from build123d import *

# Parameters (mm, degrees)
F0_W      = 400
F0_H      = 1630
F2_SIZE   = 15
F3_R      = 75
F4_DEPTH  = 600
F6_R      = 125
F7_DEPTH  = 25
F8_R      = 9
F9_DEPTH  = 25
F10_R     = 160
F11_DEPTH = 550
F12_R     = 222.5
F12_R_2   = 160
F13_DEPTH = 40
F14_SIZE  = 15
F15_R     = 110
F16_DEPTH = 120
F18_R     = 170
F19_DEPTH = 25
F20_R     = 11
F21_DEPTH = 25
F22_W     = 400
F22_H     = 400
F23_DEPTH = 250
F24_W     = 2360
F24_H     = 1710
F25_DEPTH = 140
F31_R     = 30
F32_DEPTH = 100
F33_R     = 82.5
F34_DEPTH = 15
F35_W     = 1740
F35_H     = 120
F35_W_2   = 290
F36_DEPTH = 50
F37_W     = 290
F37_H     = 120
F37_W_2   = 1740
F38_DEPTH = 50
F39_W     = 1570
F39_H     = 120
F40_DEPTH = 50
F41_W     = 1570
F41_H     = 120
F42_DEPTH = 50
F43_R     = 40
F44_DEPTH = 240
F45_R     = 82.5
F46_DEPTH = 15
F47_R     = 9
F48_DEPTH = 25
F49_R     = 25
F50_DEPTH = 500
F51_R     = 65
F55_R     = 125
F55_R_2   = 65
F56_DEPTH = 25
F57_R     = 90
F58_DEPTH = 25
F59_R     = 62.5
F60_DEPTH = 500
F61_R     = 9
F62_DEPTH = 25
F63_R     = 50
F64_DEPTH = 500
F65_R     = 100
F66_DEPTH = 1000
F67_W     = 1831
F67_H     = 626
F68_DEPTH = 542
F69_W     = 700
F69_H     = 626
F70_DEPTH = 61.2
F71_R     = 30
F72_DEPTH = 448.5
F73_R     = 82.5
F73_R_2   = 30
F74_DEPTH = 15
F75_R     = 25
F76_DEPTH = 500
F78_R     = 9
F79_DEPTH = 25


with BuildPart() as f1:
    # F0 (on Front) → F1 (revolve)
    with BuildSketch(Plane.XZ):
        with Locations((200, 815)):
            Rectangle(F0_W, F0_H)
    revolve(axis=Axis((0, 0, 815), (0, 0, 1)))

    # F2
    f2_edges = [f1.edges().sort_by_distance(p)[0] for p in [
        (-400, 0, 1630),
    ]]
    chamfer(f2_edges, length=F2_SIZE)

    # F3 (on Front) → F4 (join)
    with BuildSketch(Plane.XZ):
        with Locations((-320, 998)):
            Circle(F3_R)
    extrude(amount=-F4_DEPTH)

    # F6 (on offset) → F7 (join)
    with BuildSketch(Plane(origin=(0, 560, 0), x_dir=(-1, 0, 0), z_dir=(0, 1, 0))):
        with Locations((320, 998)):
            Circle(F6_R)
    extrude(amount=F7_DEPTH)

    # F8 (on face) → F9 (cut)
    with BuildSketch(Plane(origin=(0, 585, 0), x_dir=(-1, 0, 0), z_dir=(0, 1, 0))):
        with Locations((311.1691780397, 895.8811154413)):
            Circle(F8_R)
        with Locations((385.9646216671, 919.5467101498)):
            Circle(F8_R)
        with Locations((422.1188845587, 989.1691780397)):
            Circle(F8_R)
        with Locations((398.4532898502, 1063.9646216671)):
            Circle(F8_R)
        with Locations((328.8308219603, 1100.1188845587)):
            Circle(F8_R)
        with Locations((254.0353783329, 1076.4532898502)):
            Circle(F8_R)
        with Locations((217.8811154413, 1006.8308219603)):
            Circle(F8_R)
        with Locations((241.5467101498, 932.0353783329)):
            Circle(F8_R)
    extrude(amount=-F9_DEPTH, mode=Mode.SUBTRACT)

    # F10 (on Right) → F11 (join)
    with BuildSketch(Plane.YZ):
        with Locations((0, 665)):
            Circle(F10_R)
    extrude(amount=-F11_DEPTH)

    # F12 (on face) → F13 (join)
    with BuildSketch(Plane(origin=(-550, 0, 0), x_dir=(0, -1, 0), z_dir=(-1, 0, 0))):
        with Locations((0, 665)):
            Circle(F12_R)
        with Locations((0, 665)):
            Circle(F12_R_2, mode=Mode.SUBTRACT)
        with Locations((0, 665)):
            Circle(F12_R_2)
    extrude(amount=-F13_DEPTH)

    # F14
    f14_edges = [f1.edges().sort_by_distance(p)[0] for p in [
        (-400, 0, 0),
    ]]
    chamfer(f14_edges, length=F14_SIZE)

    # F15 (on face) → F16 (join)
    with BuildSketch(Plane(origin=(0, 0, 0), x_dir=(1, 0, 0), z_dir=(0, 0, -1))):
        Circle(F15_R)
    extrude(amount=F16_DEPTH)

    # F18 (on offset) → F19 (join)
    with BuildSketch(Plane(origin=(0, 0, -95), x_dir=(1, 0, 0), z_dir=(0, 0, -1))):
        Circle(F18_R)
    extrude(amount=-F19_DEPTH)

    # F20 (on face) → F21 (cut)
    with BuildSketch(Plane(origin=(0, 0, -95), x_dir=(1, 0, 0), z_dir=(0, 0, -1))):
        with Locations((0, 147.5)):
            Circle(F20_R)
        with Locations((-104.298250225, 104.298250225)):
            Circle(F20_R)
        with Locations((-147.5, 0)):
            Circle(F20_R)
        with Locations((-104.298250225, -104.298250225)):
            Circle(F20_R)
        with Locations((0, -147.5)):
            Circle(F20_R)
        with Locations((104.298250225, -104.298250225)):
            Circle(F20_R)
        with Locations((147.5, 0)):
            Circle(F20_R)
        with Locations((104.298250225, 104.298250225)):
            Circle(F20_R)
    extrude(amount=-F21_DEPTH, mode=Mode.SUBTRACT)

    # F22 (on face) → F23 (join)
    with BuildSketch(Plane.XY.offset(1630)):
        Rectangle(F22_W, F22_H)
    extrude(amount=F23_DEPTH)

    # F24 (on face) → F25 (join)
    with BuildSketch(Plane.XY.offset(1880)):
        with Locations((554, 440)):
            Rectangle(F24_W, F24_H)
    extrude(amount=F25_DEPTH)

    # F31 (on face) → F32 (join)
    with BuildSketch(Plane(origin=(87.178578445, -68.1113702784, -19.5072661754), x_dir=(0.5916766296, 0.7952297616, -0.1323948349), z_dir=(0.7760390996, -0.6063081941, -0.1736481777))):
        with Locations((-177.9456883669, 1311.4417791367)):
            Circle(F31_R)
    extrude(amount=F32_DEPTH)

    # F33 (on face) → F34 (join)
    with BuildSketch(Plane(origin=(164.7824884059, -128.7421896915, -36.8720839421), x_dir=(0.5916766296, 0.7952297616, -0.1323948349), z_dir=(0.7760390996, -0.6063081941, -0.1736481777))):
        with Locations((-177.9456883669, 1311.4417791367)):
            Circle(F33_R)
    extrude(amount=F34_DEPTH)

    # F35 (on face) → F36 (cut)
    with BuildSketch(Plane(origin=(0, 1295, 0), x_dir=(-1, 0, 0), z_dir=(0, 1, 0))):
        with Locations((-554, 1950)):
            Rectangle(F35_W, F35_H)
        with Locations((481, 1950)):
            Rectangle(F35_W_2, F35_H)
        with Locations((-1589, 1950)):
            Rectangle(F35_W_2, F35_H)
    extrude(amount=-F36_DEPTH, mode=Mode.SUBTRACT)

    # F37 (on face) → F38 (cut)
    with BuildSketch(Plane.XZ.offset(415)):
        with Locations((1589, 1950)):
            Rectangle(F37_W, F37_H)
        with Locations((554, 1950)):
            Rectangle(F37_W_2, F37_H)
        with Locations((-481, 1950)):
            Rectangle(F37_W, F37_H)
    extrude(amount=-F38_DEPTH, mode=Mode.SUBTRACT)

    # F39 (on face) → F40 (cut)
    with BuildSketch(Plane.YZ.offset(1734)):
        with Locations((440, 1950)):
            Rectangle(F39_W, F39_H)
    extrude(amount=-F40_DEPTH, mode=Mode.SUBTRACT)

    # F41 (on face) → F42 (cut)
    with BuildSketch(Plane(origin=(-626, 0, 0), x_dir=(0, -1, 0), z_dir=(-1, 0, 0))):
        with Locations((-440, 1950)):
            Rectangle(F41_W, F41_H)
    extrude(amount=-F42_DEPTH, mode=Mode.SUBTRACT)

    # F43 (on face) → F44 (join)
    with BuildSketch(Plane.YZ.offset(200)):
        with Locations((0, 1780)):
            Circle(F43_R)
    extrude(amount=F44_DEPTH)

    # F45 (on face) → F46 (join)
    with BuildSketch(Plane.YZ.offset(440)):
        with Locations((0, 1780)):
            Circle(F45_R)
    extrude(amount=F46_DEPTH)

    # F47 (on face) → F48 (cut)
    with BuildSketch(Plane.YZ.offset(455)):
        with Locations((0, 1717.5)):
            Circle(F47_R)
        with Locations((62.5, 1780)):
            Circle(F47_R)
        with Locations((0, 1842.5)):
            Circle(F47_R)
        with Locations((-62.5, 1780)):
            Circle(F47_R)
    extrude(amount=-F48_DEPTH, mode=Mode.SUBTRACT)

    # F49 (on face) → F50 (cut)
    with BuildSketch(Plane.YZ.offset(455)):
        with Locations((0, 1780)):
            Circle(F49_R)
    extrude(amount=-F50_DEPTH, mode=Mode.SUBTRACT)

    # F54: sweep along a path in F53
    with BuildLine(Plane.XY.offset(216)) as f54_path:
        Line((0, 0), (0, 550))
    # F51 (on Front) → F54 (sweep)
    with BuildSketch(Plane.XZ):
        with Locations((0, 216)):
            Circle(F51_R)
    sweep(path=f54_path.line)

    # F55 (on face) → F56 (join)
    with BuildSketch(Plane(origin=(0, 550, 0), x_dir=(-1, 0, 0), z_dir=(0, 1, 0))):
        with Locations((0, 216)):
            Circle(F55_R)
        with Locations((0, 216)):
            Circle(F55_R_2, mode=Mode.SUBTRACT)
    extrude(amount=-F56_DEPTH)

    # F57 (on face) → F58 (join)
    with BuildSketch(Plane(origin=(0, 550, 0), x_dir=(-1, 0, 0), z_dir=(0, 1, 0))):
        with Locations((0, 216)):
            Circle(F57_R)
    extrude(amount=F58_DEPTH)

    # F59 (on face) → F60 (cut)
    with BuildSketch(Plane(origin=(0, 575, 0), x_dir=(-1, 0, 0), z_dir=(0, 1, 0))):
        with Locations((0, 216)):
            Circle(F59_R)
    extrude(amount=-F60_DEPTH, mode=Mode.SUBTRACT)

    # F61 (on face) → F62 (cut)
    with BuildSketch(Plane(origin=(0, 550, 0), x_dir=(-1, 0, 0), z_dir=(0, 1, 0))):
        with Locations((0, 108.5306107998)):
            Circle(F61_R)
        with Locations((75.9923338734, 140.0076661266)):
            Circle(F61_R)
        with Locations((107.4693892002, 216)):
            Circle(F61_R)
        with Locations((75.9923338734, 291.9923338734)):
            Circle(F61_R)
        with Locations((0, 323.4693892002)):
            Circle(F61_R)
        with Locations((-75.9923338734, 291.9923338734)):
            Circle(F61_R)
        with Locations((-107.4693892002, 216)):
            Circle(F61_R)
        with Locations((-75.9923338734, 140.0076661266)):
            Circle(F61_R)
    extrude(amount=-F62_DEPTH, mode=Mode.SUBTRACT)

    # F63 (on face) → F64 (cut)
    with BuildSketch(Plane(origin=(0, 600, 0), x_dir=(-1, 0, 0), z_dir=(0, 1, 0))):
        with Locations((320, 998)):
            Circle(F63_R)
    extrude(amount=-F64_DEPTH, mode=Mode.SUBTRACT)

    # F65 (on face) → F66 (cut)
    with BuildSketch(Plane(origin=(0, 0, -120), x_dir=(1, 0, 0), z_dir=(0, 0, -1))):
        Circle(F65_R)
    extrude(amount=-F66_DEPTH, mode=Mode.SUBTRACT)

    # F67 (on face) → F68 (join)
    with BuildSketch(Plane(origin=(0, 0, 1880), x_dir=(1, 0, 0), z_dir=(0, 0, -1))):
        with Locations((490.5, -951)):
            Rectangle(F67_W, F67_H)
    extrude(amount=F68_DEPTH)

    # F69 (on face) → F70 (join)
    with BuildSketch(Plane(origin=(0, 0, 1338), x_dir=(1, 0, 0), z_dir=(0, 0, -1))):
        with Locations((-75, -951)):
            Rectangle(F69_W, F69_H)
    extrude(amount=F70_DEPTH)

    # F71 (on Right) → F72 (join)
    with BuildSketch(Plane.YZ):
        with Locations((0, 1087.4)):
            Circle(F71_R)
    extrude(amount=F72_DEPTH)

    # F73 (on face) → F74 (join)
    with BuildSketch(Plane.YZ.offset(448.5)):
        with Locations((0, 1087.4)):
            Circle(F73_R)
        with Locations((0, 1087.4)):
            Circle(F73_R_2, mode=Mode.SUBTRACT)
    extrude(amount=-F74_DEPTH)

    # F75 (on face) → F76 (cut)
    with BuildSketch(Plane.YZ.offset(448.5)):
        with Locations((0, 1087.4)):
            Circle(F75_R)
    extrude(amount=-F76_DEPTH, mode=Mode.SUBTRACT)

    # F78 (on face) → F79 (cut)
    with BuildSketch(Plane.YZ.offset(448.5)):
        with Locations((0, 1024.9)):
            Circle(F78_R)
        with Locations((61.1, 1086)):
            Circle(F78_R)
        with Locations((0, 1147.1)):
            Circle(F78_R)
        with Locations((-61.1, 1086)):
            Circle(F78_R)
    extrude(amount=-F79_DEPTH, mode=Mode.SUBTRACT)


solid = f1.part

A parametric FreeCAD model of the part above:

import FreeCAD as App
import Part
import Sketcher


def edges_at(feature, points):
    """Names of the edges that pass closest to the given points."""
    edges = feature.Shape.Edges
    near = lambda p: min(range(len(edges)), key=lambda i: edges[i].distToShape(Part.Vertex(*p))[0])
    return sorted({f"Edge{near(p) + 1}" for p in points})


def add_polygon(sketch, points):
    """Adds a closed chain of lines whose ends are joined by coincident constraints."""
    first, n = sketch.GeometryCount, len(points)
    for a, b in zip(points, points[1:] + points[:1]):
        sketch.addGeometry(Part.LineSegment(App.Vector(*a, 0), App.Vector(*b, 0)), False)
    for i in range(n):
        sketch.addConstraint(Sketcher.Constraint("Coincident", first + i, 2, first + (i + 1) % n, 1))

doc = App.newDocument("Part")
body = doc.addObject("PartDesign::Body", "Body")

sketch1 = doc.addObject("Sketcher::SketchObject", "Sketch")
body.addObject(sketch1)
sketch1.AttachmentSupport = (doc.XZ_Plane, [""])
sketch1.MapMode = "FlatFace"
add_polygon(sketch1, [(0, 1630), (0, 0), (400, 0), (400, 1630)])
sketch1.addConstraint(Sketcher.Constraint("Vertical", 0))
sketch1.addConstraint(Sketcher.Constraint("Horizontal", 1))
sketch1.addConstraint(Sketcher.Constraint("Vertical", 2))
sketch1.addConstraint(Sketcher.Constraint("Horizontal", 3))
sketch1.addConstraint(Sketcher.Constraint("Coincident", 0, 2, -1, 1))
sketch1.addConstraint(Sketcher.Constraint("DistanceX", 1, 1, 1, 2, 400.0))
sketch1.addConstraint(Sketcher.Constraint("DistanceY", 0, 2, 0, 1, 1630.0))
revolution = doc.addObject("PartDesign::Revolution", "Revolution")
body.addObject(revolution)
revolution.Profile = sketch1
revolution.ReferenceAxis = (sketch1, ["V_Axis"])
revolution.Angle = 360
doc.recompute()

chamfer = doc.addObject("PartDesign::Chamfer", "Chamfer")
body.addObject(chamfer)
chamfer.Base = (revolution, edges_at(revolution, [(-400, 0, 1630)]))
chamfer.Size = 15

sketch2 = doc.addObject("Sketcher::SketchObject", "Sketch001")
body.addObject(sketch2)
sketch2.AttachmentSupport = (doc.XZ_Plane, [""])
sketch2.MapMode = "FlatFace"
sketch2.addGeometry(Part.Circle(App.Vector(-320, 998, 0), App.Vector(0, 0, 1), 75), False)
sketch2.addConstraint(Sketcher.Constraint("Diameter", 0, 150.0))
sketch2.addConstraint(Sketcher.Constraint("DistanceX", 0, 3, -1, 1, 320.0))
sketch2.addConstraint(Sketcher.Constraint("DistanceY", -1, 1, 0, 3, 998.0))
pad1 = doc.addObject("PartDesign::Pad", "Pad")
body.addObject(pad1)
pad1.Profile = sketch2
pad1.Length = 600
pad1.Reversed = True

sketch3 = doc.addObject("Sketcher::SketchObject", "Sketch002")
body.addObject(sketch3)
sketch3.AttachmentSupport = (doc.XZ_Plane, [""])
sketch3.MapMode = "FlatFace"
sketch3.AttachmentOffset = App.Placement(App.Vector(0, 0, -560), App.Rotation())
sketch3.addGeometry(Part.Circle(App.Vector(-320, 998, 0), App.Vector(0, 0, 1), 125), False)
sketch3.addConstraint(Sketcher.Constraint("Diameter", 0, 250.0))
sketch3.addConstraint(Sketcher.Constraint("DistanceX", 0, 3, -1, 1, 320.0))
sketch3.addConstraint(Sketcher.Constraint("DistanceY", -1, 1, 0, 3, 998.0))
pad2 = doc.addObject("PartDesign::Pad", "Pad001")
body.addObject(pad2)
pad2.Profile = sketch3
pad2.Length = 25
pad2.Reversed = True

sketch4 = doc.addObject("Sketcher::SketchObject", "Sketch003")
body.addObject(sketch4)
sketch4.AttachmentSupport = (doc.XZ_Plane, [""])
sketch4.MapMode = "FlatFace"
sketch4.AttachmentOffset = App.Placement(App.Vector(0, 0, -585), App.Rotation())
sketch4.addGeometry(Part.Circle(App.Vector(-311.169178, 895.881115, 0), App.Vector(0, 0, 1), 9), False)
sketch4.addGeometry(Part.Circle(App.Vector(-385.964622, 919.54671, 0), App.Vector(0, 0, 1), 9), False)
sketch4.addGeometry(Part.Circle(App.Vector(-422.118885, 989.169178, 0), App.Vector(0, 0, 1), 9), False)
sketch4.addGeometry(Part.Circle(App.Vector(-398.45329, 1063.964622, 0), App.Vector(0, 0, 1), 9), False)
sketch4.addGeometry(Part.Circle(App.Vector(-328.830822, 1100.118885, 0), App.Vector(0, 0, 1), 9), False)
sketch4.addGeometry(Part.Circle(App.Vector(-254.035378, 1076.45329, 0), App.Vector(0, 0, 1), 9), False)
sketch4.addGeometry(Part.Circle(App.Vector(-217.881115, 1006.830822, 0), App.Vector(0, 0, 1), 9), False)
sketch4.addGeometry(Part.Circle(App.Vector(-241.54671, 932.035378, 0), App.Vector(0, 0, 1), 9), False)
sketch4.addConstraint(Sketcher.Constraint("Equal", 0, 1))
sketch4.addConstraint(Sketcher.Constraint("Equal", 1, 2))
sketch4.addConstraint(Sketcher.Constraint("Equal", 2, 3))
sketch4.addConstraint(Sketcher.Constraint("Equal", 3, 4))
sketch4.addConstraint(Sketcher.Constraint("Equal", 4, 5))
sketch4.addConstraint(Sketcher.Constraint("Equal", 5, 6))
sketch4.addConstraint(Sketcher.Constraint("Equal", 6, 7))
sketch4.addConstraint(Sketcher.Constraint("Diameter", 0, 18.0))
sketch4.addConstraint(Sketcher.Constraint("DistanceX", 1, 3, 4, 3, 57.1338))
sketch4.addConstraint(Sketcher.Constraint("DistanceX", 0, 3, 5, 3, 57.1338))
sketch4.addConstraint(Sketcher.Constraint("DistanceY", 6, 3, 3, 3, 57.1338))
sketch4.addConstraint(Sketcher.Constraint("DistanceX", 0, 3, -1, 1, 311.169178))
sketch4.addConstraint(Sketcher.Constraint("DistanceX", 1, 3, -1, 1, 385.964622))
sketch4.addConstraint(Sketcher.Constraint("DistanceY", -1, 1, 1, 3, 919.54671))
sketch4.addConstraint(Sketcher.Constraint("DistanceY", -1, 1, 2, 3, 989.169178))
sketch4.addConstraint(Sketcher.Constraint("DistanceX", 3, 3, -1, 1, 398.45329))
sketch4.addConstraint(Sketcher.Constraint("DistanceY", -1, 1, 3, 3, 1063.964622))
sketch4.addConstraint(Sketcher.Constraint("DistanceY", -1, 1, 5, 3, 1076.45329))
sketch4.addConstraint(Sketcher.Constraint("DistanceX", 7, 3, -1, 1, 241.54671))
sketch4.addConstraint(Sketcher.Constraint("DistanceY", -1, 1, 7, 3, 932.035378))
sketch4.addConstraint(Sketcher.Constraint("DistanceY", 0, 3, 4, 3, 204.237769))
sketch4.addConstraint(Sketcher.Constraint("DistanceY", -1, 1, 0, 3, 895.881115))
sketch4.addConstraint(Sketcher.Constraint("DistanceX", 2, 3, -1, 1, 422.118885))
sketch4.addConstraint(Sketcher.Constraint("DistanceX", 6, 3, -1, 1, 217.881115))
pocket1 = doc.addObject("PartDesign::Pocket", "Pocket")
body.addObject(pocket1)
pocket1.Profile = sketch4
pocket1.Length = 25
pocket1.Reversed = True

sketch5 = doc.addObject("Sketcher::SketchObject", "Sketch004")
body.addObject(sketch5)
sketch5.AttachmentSupport = (doc.YZ_Plane, [""])
sketch5.MapMode = "FlatFace"
sketch5.addGeometry(Part.Circle(App.Vector(0, 665, 0), App.Vector(0, 0, 1), 160), False)
sketch5.addConstraint(Sketcher.Constraint("PointOnObject", 0, 3, -2))
sketch5.addConstraint(Sketcher.Constraint("Diameter", 0, 320.0))
sketch5.addConstraint(Sketcher.Constraint("DistanceY", -1, 1, 0, 3, 665.0))
pad3 = doc.addObject("PartDesign::Pad", "Pad002")
body.addObject(pad3)
pad3.Profile = sketch5
pad3.Length = 550
pad3.Reversed = True

sketch6 = doc.addObject("Sketcher::SketchObject", "Sketch005")
body.addObject(sketch6)
sketch6.AttachmentSupport = (doc.YZ_Plane, [""])
sketch6.MapMode = "FlatFace"
sketch6.AttachmentOffset = App.Placement(App.Vector(0, 0, -550), App.Rotation())
sketch6.addGeometry(Part.Circle(App.Vector(0, 665, 0), App.Vector(0, 0, 1), 222.5), False)
sketch6.addConstraint(Sketcher.Constraint("PointOnObject", 0, 3, -2))
sketch6.addConstraint(Sketcher.Constraint("Diameter", 0, 445.0))
sketch6.addConstraint(Sketcher.Constraint("DistanceY", -1, 1, 0, 3, 665.0))
pad4 = doc.addObject("PartDesign::Pad", "Pad003")
body.addObject(pad4)
pad4.Profile = sketch6
pad4.Length = 40
doc.recompute()

chamfer2 = doc.addObject("PartDesign::Chamfer", "Chamfer001")
body.addObject(chamfer2)
chamfer2.Base = (pad4, edges_at(pad4, [(-400, 0, 0)]))
chamfer2.Size = 15

sketch7 = doc.addObject("Sketcher::SketchObject", "Sketch006")
body.addObject(sketch7)
sketch7.AttachmentSupport = (doc.XY_Plane, [""])
sketch7.MapMode = "FlatFace"
sketch7.addGeometry(Part.Circle(App.Vector(0, 0, 0), App.Vector(0, 0, 1), 110), False)
sketch7.addConstraint(Sketcher.Constraint("Coincident", 0, 3, -1, 1))
sketch7.addConstraint(Sketcher.Constraint("Diameter", 0, 220.0))
pad5 = doc.addObject("PartDesign::Pad", "Pad004")
body.addObject(pad5)
pad5.Profile = sketch7
pad5.Length = 120
pad5.Reversed = True

sketch8 = doc.addObject("Sketcher::SketchObject", "Sketch007")
body.addObject(sketch8)
sketch8.AttachmentSupport = (doc.XY_Plane, [""])
sketch8.MapMode = "FlatFace"
sketch8.AttachmentOffset = App.Placement(App.Vector(0, 0, -95), App.Rotation())
sketch8.addGeometry(Part.Circle(App.Vector(0, 0, 0), App.Vector(0, 0, 1), 170), False)
sketch8.addConstraint(Sketcher.Constraint("Coincident", 0, 3, -1, 1))
sketch8.addConstraint(Sketcher.Constraint("Diameter", 0, 340.0))
pad6 = doc.addObject("PartDesign::Pad", "Pad005")
body.addObject(pad6)
pad6.Profile = sketch8
pad6.Length = 25

sketch9 = doc.addObject("Sketcher::SketchObject", "Sketch008")
body.addObject(sketch9)
sketch9.AttachmentSupport = (doc.XY_Plane, [""])
sketch9.MapMode = "FlatFace"
sketch9.AttachmentOffset = App.Placement(App.Vector(0, 0, -95), App.Rotation())
sketch9.addGeometry(Part.Circle(App.Vector(0, -147.5, 0), App.Vector(0, 0, 1), 11), False)
sketch9.addGeometry(Part.Circle(App.Vector(-104.29825, -104.29825, 0), App.Vector(0, 0, 1), 11), False)
sketch9.addGeometry(Part.Circle(App.Vector(-147.5, 0, 0), App.Vector(0, 0, 1), 11), False)
sketch9.addGeometry(Part.Circle(App.Vector(-104.29825, 104.29825, 0), App.Vector(0, 0, 1), 11), False)
sketch9.addGeometry(Part.Circle(App.Vector(0, 147.5, 0), App.Vector(0, 0, 1), 11), False)
sketch9.addGeometry(Part.Circle(App.Vector(104.29825, 104.29825, 0), App.Vector(0, 0, 1), 11), False)
sketch9.addGeometry(Part.Circle(App.Vector(147.5, 0, 0), App.Vector(0, 0, 1), 11), False)
sketch9.addGeometry(Part.Circle(App.Vector(104.29825, -104.29825, 0), App.Vector(0, 0, 1), 11), False)
sketch9.addConstraint(Sketcher.Constraint("Equal", 0, 1))
sketch9.addConstraint(Sketcher.Constraint("Equal", 1, 2))
sketch9.addConstraint(Sketcher.Constraint("Equal", 2, 3))
sketch9.addConstraint(Sketcher.Constraint("Equal", 3, 4))
sketch9.addConstraint(Sketcher.Constraint("Equal", 4, 5))
sketch9.addConstraint(Sketcher.Constraint("Equal", 5, 6))
sketch9.addConstraint(Sketcher.Constraint("Equal", 6, 7))
sketch9.addConstraint(Sketcher.Constraint("Symmetric", 0, 3, 4, 3, -1, 1))
sketch9.addConstraint(Sketcher.Constraint("Symmetric", 1, 3, 5, 3, -1, 1))
sketch9.addConstraint(Sketcher.Constraint("Symmetric", 2, 3, 6, 3, -1, 1))
sketch9.addConstraint(Sketcher.Constraint("Symmetric", 3, 3, 7, 3, -1, 1))
sketch9.addConstraint(Sketcher.Constraint("Symmetric", 3, 3, 5, 3, -2))
sketch9.addConstraint(Sketcher.Constraint("PointOnObject", 0, 3, -2))
sketch9.addConstraint(Sketcher.Constraint("PointOnObject", 2, 3, -1))
sketch9.addConstraint(Sketcher.Constraint("Diameter", 0, 22.0))
sketch9.addConstraint(Sketcher.Constraint("DistanceY", 0, 3, 4, 3, 295.0))
sketch9.addConstraint(Sketcher.Constraint("DistanceX", 2, 3, -1, 1, 147.5))
sketch9.addConstraint(Sketcher.Constraint("DistanceY", 1, 3, 3, 3, 208.5965))
sketch9.addConstraint(Sketcher.Constraint("DistanceX", 3, 3, 5, 3, 208.5965))
pocket2 = doc.addObject("PartDesign::Pocket", "Pocket001")
body.addObject(pocket2)
pocket2.Profile = sketch9
pocket2.Length = 25
pocket2.Reversed = True

sketch10 = doc.addObject("Sketcher::SketchObject", "Sketch009")
body.addObject(sketch10)
sketch10.AttachmentSupport = (doc.XY_Plane, [""])
sketch10.MapMode = "FlatFace"
sketch10.AttachmentOffset = App.Placement(App.Vector(0, 0, 1630), App.Rotation())
add_polygon(sketch10, [(-200, 200), (-200, -200), (200, -200), (200, 200)])
sketch10.addConstraint(Sketcher.Constraint("Vertical", 0))
sketch10.addConstraint(Sketcher.Constraint("Horizontal", 1))
sketch10.addConstraint(Sketcher.Constraint("Vertical", 2))
sketch10.addConstraint(Sketcher.Constraint("Horizontal", 3))
sketch10.addConstraint(Sketcher.Constraint("Symmetric", 0, 2, 2, 2, -1, 1))
sketch10.addConstraint(Sketcher.Constraint("Equal", 3, 0))
sketch10.addConstraint(Sketcher.Constraint("DistanceX", 1, 1, 1, 2, 400.0))
pad7 = doc.addObject("PartDesign::Pad", "Pad006")
body.addObject(pad7)
pad7.Profile = sketch10
pad7.Length = 250

sketch11 = doc.addObject("Sketcher::SketchObject", "Sketch010")
body.addObject(sketch11)
sketch11.AttachmentSupport = (doc.XY_Plane, [""])
sketch11.MapMode = "FlatFace"
sketch11.AttachmentOffset = App.Placement(App.Vector(0, 0, 1880), App.Rotation())
add_polygon(sketch11, [(-626, 1295), (-626, -415), (1734, -415), (1734, 1295)])
sketch11.addConstraint(Sketcher.Constraint("Vertical", 0))
sketch11.addConstraint(Sketcher.Constraint("Horizontal", 1))
sketch11.addConstraint(Sketcher.Constraint("Vertical", 2))
sketch11.addConstraint(Sketcher.Constraint("Horizontal", 3))
sketch11.addConstraint(Sketcher.Constraint("DistanceX", 1, 1, 1, 2, 2360.0))
sketch11.addConstraint(Sketcher.Constraint("DistanceY", 0, 2, 0, 1, 1710.0))
sketch11.addConstraint(Sketcher.Constraint("DistanceX", 0, 2, -1, 1, 626.0))
sketch11.addConstraint(Sketcher.Constraint("DistanceY", 0, 2, -1, 1, 415.0))
pad8 = doc.addObject("PartDesign::Pad", "Pad007")
body.addObject(pad8)
pad8.Profile = sketch11
pad8.Length = 140

sketch12 = doc.addObject("Sketcher::SketchObject", "Sketch011")
body.addObject(sketch12)
sketch12.Placement = App.Placement(App.Vector(87.178578, -68.11137, -19.507266), App.Rotation(App.Vector(0.59167663, 0.795229762, -0.132394835), App.Vector(0.218362273, 0, 0.975867778), App.Vector(0.7760391, -0.606308194, -0.173648178), "ZXY"))
sketch12.addGeometry(Part.Circle(App.Vector(-177.945689, 1311.441781, 0), App.Vector(0, 0, 1), 30), False)
sketch12.addConstraint(Sketcher.Constraint("Diameter", 0, 60.0))
sketch12.addConstraint(Sketcher.Constraint("DistanceX", 0, 3, -1, 1, 177.945689))
sketch12.addConstraint(Sketcher.Constraint("DistanceY", -1, 1, 0, 3, 1311.441781))
pad9 = doc.addObject("PartDesign::Pad", "Pad008")
body.addObject(pad9)
pad9.Profile = sketch12
pad9.Length = 100

sketch13 = doc.addObject("Sketcher::SketchObject", "Sketch012")
body.addObject(sketch13)
sketch13.Placement = App.Placement(App.Vector(164.782488, -128.74219, -36.872084), App.Rotation(App.Vector(0.59167663, 0.795229762, -0.132394835), App.Vector(0.218362273, 0, 0.975867778), App.Vector(0.7760391, -0.606308194, -0.173648178), "ZXY"))
sketch13.addGeometry(Part.Circle(App.Vector(-177.945689, 1311.441781, 0), App.Vector(0, 0, 1), 82.5), False)
sketch13.addConstraint(Sketcher.Constraint("Diameter", 0, 165.0))
sketch13.addConstraint(Sketcher.Constraint("DistanceX", 0, 3, -1, 1, 177.945689))
sketch13.addConstraint(Sketcher.Constraint("DistanceY", -1, 1, 0, 3, 1311.441781))
pad10 = doc.addObject("PartDesign::Pad", "Pad009")
body.addObject(pad10)
pad10.Profile = sketch13
pad10.Length = 15

sketch14 = doc.addObject("Sketcher::SketchObject", "Sketch013")
body.addObject(sketch14)
sketch14.AttachmentSupport = (doc.XZ_Plane, [""])
sketch14.MapMode = "FlatFace"
sketch14.AttachmentOffset = App.Placement(App.Vector(0, 0, -1295), App.Rotation())
add_polygon(sketch14, [(1424, 2010), (1424, 1890), (-316, 1890), (-316, 2010)])
add_polygon(sketch14, [(-336, 2010), (-336, 1890), (-626, 1890), (-626, 2010)])
add_polygon(sketch14, [(1734, 2010), (1734, 1890), (1444, 1890), (1444, 2010)])
sketch14.addConstraint(Sketcher.Constraint("Vertical", 0))
sketch14.addConstraint(Sketcher.Constraint("Horizontal", 1))
sketch14.addConstraint(Sketcher.Constraint("Vertical", 2))
sketch14.addConstraint(Sketcher.Constraint("Horizontal", 3))
sketch14.addConstraint(Sketcher.Constraint("Vertical", 4))
sketch14.addConstraint(Sketcher.Constraint("Horizontal", 5))
sketch14.addConstraint(Sketcher.Constraint("Vertical", 6))
sketch14.addConstraint(Sketcher.Constraint("Horizontal", 7))
sketch14.addConstraint(Sketcher.Constraint("Vertical", 8))
sketch14.addConstraint(Sketcher.Constraint("Horizontal", 9))
sketch14.addConstraint(Sketcher.Constraint("Vertical", 10))
sketch14.addConstraint(Sketcher.Constraint("Horizontal", 11))
sketch14.addConstraint(Sketcher.Constraint("Horizontal", 1, 2, 4, 2))
sketch14.addConstraint(Sketcher.Constraint("Horizontal", 3, 2, 6, 2))
sketch14.addConstraint(Sketcher.Constraint("Horizontal", 5, 2, 8, 2))
sketch14.addConstraint(Sketcher.Constraint("Horizontal", 7, 2, 10, 2))
sketch14.addConstraint(Sketcher.Constraint("Equal", 7, 9))
sketch14.addConstraint(Sketcher.Constraint("DistanceX", 1, 2, 1, 1, 1740.0))
sketch14.addConstraint(Sketcher.Constraint("DistanceX", 5, 2, 5, 1, 290.0))
sketch14.addConstraint(Sketcher.Constraint("DistanceY", 0, 2, 0, 1, 120.0))
sketch14.addConstraint(Sketcher.Constraint("DistanceX", -1, 1, 0, 2, 1424.0))
sketch14.addConstraint(Sketcher.Constraint("DistanceY", -1, 1, 0, 2, 1890.0))
sketch14.addConstraint(Sketcher.Constraint("DistanceX", 4, 2, -1, 1, 336.0))
sketch14.addConstraint(Sketcher.Constraint("DistanceX", -1, 1, 8, 2, 1734.0))
pocket3 = doc.addObject("PartDesign::Pocket", "Pocket002")
body.addObject(pocket3)
pocket3.Profile = sketch14
pocket3.Length = 50
pocket3.Reversed = True

sketch15 = doc.addObject("Sketcher::SketchObject", "Sketch014")
body.addObject(sketch15)
sketch15.AttachmentSupport = (doc.XZ_Plane, [""])
sketch15.MapMode = "FlatFace"
sketch15.AttachmentOffset = App.Placement(App.Vector(0, 0, 415), App.Rotation())
add_polygon(sketch15, [(1444, 2010), (1444, 1890), (1734, 1890), (1734, 2010)])
add_polygon(sketch15, [(-316, 2010), (-316, 1890), (1424, 1890), (1424, 2010)])
add_polygon(sketch15, [(-626, 2010), (-626, 1890), (-336, 1890), (-336, 2010)])
sketch15.addConstraint(Sketcher.Constraint("Vertical", 0))
sketch15.addConstraint(Sketcher.Constraint("Horizontal", 1))
sketch15.addConstraint(Sketcher.Constraint("Vertical", 2))
sketch15.addConstraint(Sketcher.Constraint("Horizontal", 3))
sketch15.addConstraint(Sketcher.Constraint("Vertical", 4))
sketch15.addConstraint(Sketcher.Constraint("Horizontal", 5))
sketch15.addConstraint(Sketcher.Constraint("Vertical", 6))
sketch15.addConstraint(Sketcher.Constraint("Horizontal", 7))
sketch15.addConstraint(Sketcher.Constraint("Vertical", 8))
sketch15.addConstraint(Sketcher.Constraint("Horizontal", 9))
sketch15.addConstraint(Sketcher.Constraint("Vertical", 10))
sketch15.addConstraint(Sketcher.Constraint("Horizontal", 11))
sketch15.addConstraint(Sketcher.Constraint("Horizontal", 1, 2, 4, 2))
sketch15.addConstraint(Sketcher.Constraint("Horizontal", 3, 2, 6, 2))
sketch15.addConstraint(Sketcher.Constraint("Horizontal", 5, 2, 8, 2))
sketch15.addConstraint(Sketcher.Constraint("Horizontal", 7, 2, 10, 2))
sketch15.addConstraint(Sketcher.Constraint("Equal", 3, 9))
sketch15.addConstraint(Sketcher.Constraint("DistanceX", 1, 1, 1, 2, 290.0))
sketch15.addConstraint(Sketcher.Constraint("DistanceX", 5, 1, 5, 2, 1740.0))
sketch15.addConstraint(Sketcher.Constraint("DistanceY", 0, 2, 0, 1, 120.0))
sketch15.addConstraint(Sketcher.Constraint("DistanceX", -1, 1, 0, 2, 1444.0))
sketch15.addConstraint(Sketcher.Constraint("DistanceY", -1, 1, 0, 2, 1890.0))
sketch15.addConstraint(Sketcher.Constraint("DistanceX", 4, 2, -1, 1, 316.0))
sketch15.addConstraint(Sketcher.Constraint("DistanceX", 8, 2, -1, 1, 626.0))
pocket4 = doc.addObject("PartDesign::Pocket", "Pocket003")
body.addObject(pocket4)
pocket4.Profile = sketch15
pocket4.Length = 50

sketch16 = doc.addObject("Sketcher::SketchObject", "Sketch015")
body.addObject(sketch16)
sketch16.AttachmentSupport = (doc.YZ_Plane, [""])
sketch16.MapMode = "FlatFace"
sketch16.AttachmentOffset = App.Placement(App.Vector(0, 0, 1734), App.Rotation())
add_polygon(sketch16, [(-345, 2010), (-345, 1890), (1225, 1890), (1225, 2010)])
sketch16.addConstraint(Sketcher.Constraint("Vertical", 0))
sketch16.addConstraint(Sketcher.Constraint("Horizontal", 1))
sketch16.addConstraint(Sketcher.Constraint("Vertical", 2))
sketch16.addConstraint(Sketcher.Constraint("Horizontal", 3))
sketch16.addConstraint(Sketcher.Constraint("DistanceX", 1, 1, 1, 2, 1570.0))
sketch16.addConstraint(Sketcher.Constraint("DistanceY", 0, 2, 0, 1, 120.0))
sketch16.addConstraint(Sketcher.Constraint("DistanceX", 0, 2, -1, 1, 345.0))
sketch16.addConstraint(Sketcher.Constraint("DistanceY", -1, 1, 0, 2, 1890.0))
pocket5 = doc.addObject("PartDesign::Pocket", "Pocket004")
body.addObject(pocket5)
pocket5.Profile = sketch16
pocket5.Length = 50

sketch17 = doc.addObject("Sketcher::SketchObject", "Sketch016")
body.addObject(sketch17)
sketch17.AttachmentSupport = (doc.YZ_Plane, [""])
sketch17.MapMode = "FlatFace"
sketch17.AttachmentOffset = App.Placement(App.Vector(0, 0, -626), App.Rotation())
add_polygon(sketch17, [(1225, 2010), (1225, 1890), (-345, 1890), (-345, 2010)])
sketch17.addConstraint(Sketcher.Constraint("Vertical", 0))
sketch17.addConstraint(Sketcher.Constraint("Horizontal", 1))
sketch17.addConstraint(Sketcher.Constraint("Vertical", 2))
sketch17.addConstraint(Sketcher.Constraint("Horizontal", 3))
sketch17.addConstraint(Sketcher.Constraint("DistanceX", 1, 2, 1, 1, 1570.0))
sketch17.addConstraint(Sketcher.Constraint("DistanceY", 0, 2, 0, 1, 120.0))
sketch17.addConstraint(Sketcher.Constraint("DistanceX", -1, 1, 0, 2, 1225.0))
sketch17.addConstraint(Sketcher.Constraint("DistanceY", -1, 1, 0, 2, 1890.0))
pocket6 = doc.addObject("PartDesign::Pocket", "Pocket005")
body.addObject(pocket6)
pocket6.Profile = sketch17
pocket6.Length = 50
pocket6.Reversed = True

sketch18 = doc.addObject("Sketcher::SketchObject", "Sketch017")
body.addObject(sketch18)
sketch18.AttachmentSupport = (doc.YZ_Plane, [""])
sketch18.MapMode = "FlatFace"
sketch18.AttachmentOffset = App.Placement(App.Vector(0, 0, 200), App.Rotation())
sketch18.addGeometry(Part.Circle(App.Vector(0, 1780, 0), App.Vector(0, 0, 1), 40), False)
sketch18.addConstraint(Sketcher.Constraint("PointOnObject", 0, 3, -2))
sketch18.addConstraint(Sketcher.Constraint("Diameter", 0, 80.0))
sketch18.addConstraint(Sketcher.Constraint("DistanceY", -1, 1, 0, 3, 1780.0))
pad11 = doc.addObject("PartDesign::Pad", "Pad010")
body.addObject(pad11)
pad11.Profile = sketch18
pad11.Length = 240

sketch19 = doc.addObject("Sketcher::SketchObject", "Sketch018")
body.addObject(sketch19)
sketch19.AttachmentSupport = (doc.YZ_Plane, [""])
sketch19.MapMode = "FlatFace"
sketch19.AttachmentOffset = App.Placement(App.Vector(0, 0, 440), App.Rotation())
sketch19.addGeometry(Part.Circle(App.Vector(0, 1780, 0), App.Vector(0, 0, 1), 82.5), False)
sketch19.addConstraint(Sketcher.Constraint("PointOnObject", 0, 3, -2))
sketch19.addConstraint(Sketcher.Constraint("Diameter", 0, 165.0))
sketch19.addConstraint(Sketcher.Constraint("DistanceY", -1, 1, 0, 3, 1780.0))
pad12 = doc.addObject("PartDesign::Pad", "Pad011")
body.addObject(pad12)
pad12.Profile = sketch19
pad12.Length = 15

sketch20 = doc.addObject("Sketcher::SketchObject", "Sketch019")
body.addObject(sketch20)
sketch20.AttachmentSupport = (doc.YZ_Plane, [""])
sketch20.MapMode = "FlatFace"
sketch20.AttachmentOffset = App.Placement(App.Vector(0, 0, 455), App.Rotation())
sketch20.addGeometry(Part.Circle(App.Vector(0, 1717.5, 0), App.Vector(0, 0, 1), 9), False)
sketch20.addGeometry(Part.Circle(App.Vector(62.5, 1780, 0), App.Vector(0, 0, 1), 9), False)
sketch20.addGeometry(Part.Circle(App.Vector(0, 1842.5, 0), App.Vector(0, 0, 1), 9), False)
sketch20.addGeometry(Part.Circle(App.Vector(-62.5, 1780, 0), App.Vector(0, 0, 1), 9), False)
sketch20.addConstraint(Sketcher.Constraint("Equal", 0, 1))
sketch20.addConstraint(Sketcher.Constraint("Equal", 1, 2))
sketch20.addConstraint(Sketcher.Constraint("Equal", 2, 3))
sketch20.addConstraint(Sketcher.Constraint("Symmetric", 1, 3, 3, 3, -2))
sketch20.addConstraint(Sketcher.Constraint("PointOnObject", 0, 3, -2))
sketch20.addConstraint(Sketcher.Constraint("PointOnObject", 2, 3, -2))
sketch20.addConstraint(Sketcher.Constraint("Diameter", 0, 18.0))
sketch20.addConstraint(Sketcher.Constraint("DistanceY", -1, 1, 1, 3, 1780.0))
sketch20.addConstraint(Sketcher.Constraint("DistanceY", 0, 3, 2, 3, 125.0))
sketch20.addConstraint(Sketcher.Constraint("DistanceX", 3, 3, 1, 3, 125.0))
sketch20.addConstraint(Sketcher.Constraint("DistanceY", -1, 1, 0, 3, 1717.5))
pocket7 = doc.addObject("PartDesign::Pocket", "Pocket006")
body.addObject(pocket7)
pocket7.Profile = sketch20
pocket7.Length = 25

sketch21 = doc.addObject("Sketcher::SketchObject", "Sketch020")
body.addObject(sketch21)
sketch21.AttachmentSupport = (doc.YZ_Plane, [""])
sketch21.MapMode = "FlatFace"
sketch21.AttachmentOffset = App.Placement(App.Vector(0, 0, 455), App.Rotation())
sketch21.addGeometry(Part.Circle(App.Vector(0, 1780, 0), App.Vector(0, 0, 1), 25), False)
sketch21.addConstraint(Sketcher.Constraint("PointOnObject", 0, 3, -2))
sketch21.addConstraint(Sketcher.Constraint("Diameter", 0, 50.0))
sketch21.addConstraint(Sketcher.Constraint("DistanceY", -1, 1, 0, 3, 1780.0))
pocket8 = doc.addObject("PartDesign::Pocket", "Pocket007")
body.addObject(pocket8)
pocket8.Profile = sketch21
pocket8.Length = 500

sketch22 = doc.addObject("Sketcher::SketchObject", "Sketch021")
body.addObject(sketch22)
sketch22.AttachmentSupport = (doc.XZ_Plane, [""])
sketch22.MapMode = "FlatFace"
sketch22.addGeometry(Part.Circle(App.Vector(0, 216, 0), App.Vector(0, 0, 1), 65), False)
sketch22.addConstraint(Sketcher.Constraint("PointOnObject", 0, 3, -2))
sketch22.addConstraint(Sketcher.Constraint("Diameter", 0, 130.0))
sketch22.addConstraint(Sketcher.Constraint("DistanceY", -1, 1, 0, 3, 216.0))

sketch23 = doc.addObject("Sketcher::SketchObject", "Sketch022")
body.addObject(sketch23)
sketch23.AttachmentSupport = (doc.XY_Plane, [""])
sketch23.MapMode = "FlatFace"
sketch23.AttachmentOffset = App.Placement(App.Vector(0, 0, 216), App.Rotation())
sketch23.addGeometry(Part.LineSegment(App.Vector(0, 0, 0), App.Vector(0, 550, 0)), False)
sketch23.addConstraint(Sketcher.Constraint("Vertical", 0))
sketch23.addConstraint(Sketcher.Constraint("Coincident", 0, 1, -1, 1))
sketch23.addConstraint(Sketcher.Constraint("DistanceY", 0, 1, 0, 2, 550.0))
doc.recompute()

additivepipe = doc.addObject("PartDesign::AdditivePipe", "AdditivePipe")
body.addObject(additivepipe)
additivepipe.Profile = sketch22
additivepipe.Spine = (sketch23, ["Edge1"])

sketch24 = doc.addObject("Sketcher::SketchObject", "Sketch023")
body.addObject(sketch24)
sketch24.AttachmentSupport = (doc.XZ_Plane, [""])
sketch24.MapMode = "FlatFace"
sketch24.AttachmentOffset = App.Placement(App.Vector(0, 0, -550), App.Rotation())
sketch24.addGeometry(Part.Circle(App.Vector(0, 216, 0), App.Vector(0, 0, 1), 125), False)
sketch24.addGeometry(Part.Circle(App.Vector(0, 216, 0), App.Vector(0, 0, 1), 65), False)
sketch24.addConstraint(Sketcher.Constraint("Coincident", 1, 3, 0, 3))
sketch24.addConstraint(Sketcher.Constraint("PointOnObject", 0, 3, -2))
sketch24.addConstraint(Sketcher.Constraint("Diameter", 0, 250.0))
sketch24.addConstraint(Sketcher.Constraint("Diameter", 1, 130.0))
sketch24.addConstraint(Sketcher.Constraint("DistanceY", -1, 1, 0, 3, 216.0))
pad13 = doc.addObject("PartDesign::Pad", "Pad012")
body.addObject(pad13)
pad13.Profile = sketch24
pad13.Length = 25

sketch25 = doc.addObject("Sketcher::SketchObject", "Sketch024")
body.addObject(sketch25)
sketch25.AttachmentSupport = (doc.XZ_Plane, [""])
sketch25.MapMode = "FlatFace"
sketch25.AttachmentOffset = App.Placement(App.Vector(0, 0, -550), App.Rotation())
sketch25.addGeometry(Part.Circle(App.Vector(0, 216, 0), App.Vector(0, 0, 1), 90), False)
sketch25.addConstraint(Sketcher.Constraint("PointOnObject", 0, 3, -2))
sketch25.addConstraint(Sketcher.Constraint("Diameter", 0, 180.0))
sketch25.addConstraint(Sketcher.Constraint("DistanceY", -1, 1, 0, 3, 216.0))
pad14 = doc.addObject("PartDesign::Pad", "Pad013")
body.addObject(pad14)
pad14.Profile = sketch25
pad14.Length = 25
pad14.Reversed = True

sketch26 = doc.addObject("Sketcher::SketchObject", "Sketch025")
body.addObject(sketch26)
sketch26.AttachmentSupport = (doc.XZ_Plane, [""])
sketch26.MapMode = "FlatFace"
sketch26.AttachmentOffset = App.Placement(App.Vector(0, 0, -575), App.Rotation())
sketch26.addGeometry(Part.Circle(App.Vector(0, 216, 0), App.Vector(0, 0, 1), 62.5), False)
sketch26.addConstraint(Sketcher.Constraint("PointOnObject", 0, 3, -2))
sketch26.addConstraint(Sketcher.Constraint("Diameter", 0, 125.0))
sketch26.addConstraint(Sketcher.Constraint("DistanceY", -1, 1, 0, 3, 216.0))
pocket9 = doc.addObject("PartDesign::Pocket", "Pocket008")
body.addObject(pocket9)
pocket9.Profile = sketch26
pocket9.Length = 500
pocket9.Reversed = True

sketch27 = doc.addObject("Sketcher::SketchObject", "Sketch026")
body.addObject(sketch27)
sketch27.AttachmentSupport = (doc.XZ_Plane, [""])
sketch27.MapMode = "FlatFace"
sketch27.AttachmentOffset = App.Placement(App.Vector(0, 0, -550), App.Rotation())
sketch27.addGeometry(Part.Circle(App.Vector(0, 108.530611, 0), App.Vector(0, 0, 1), 9), False)
sketch27.addGeometry(Part.Circle(App.Vector(-75.992334, 140.007666, 0), App.Vector(0, 0, 1), 9), False)
sketch27.addGeometry(Part.Circle(App.Vector(-107.469389, 216, 0), App.Vector(0, 0, 1), 9), False)
sketch27.addGeometry(Part.Circle(App.Vector(-75.992334, 291.992334, 0), App.Vector(0, 0, 1), 9), False)
sketch27.addGeometry(Part.Circle(App.Vector(0, 323.469389, 0), App.Vector(0, 0, 1), 9), False)
sketch27.addGeometry(Part.Circle(App.Vector(75.992334, 291.992334, 0), App.Vector(0, 0, 1), 9), False)
sketch27.addGeometry(Part.Circle(App.Vector(107.469389, 216, 0), App.Vector(0, 0, 1), 9), False)
sketch27.addGeometry(Part.Circle(App.Vector(75.992334, 140.007666, 0), App.Vector(0, 0, 1), 9), False)
sketch27.addConstraint(Sketcher.Constraint("Equal", 0, 1))
sketch27.addConstraint(Sketcher.Constraint("Equal", 1, 2))
sketch27.addConstraint(Sketcher.Constraint("Equal", 2, 3))
sketch27.addConstraint(Sketcher.Constraint("Equal", 3, 4))
sketch27.addConstraint(Sketcher.Constraint("Equal", 4, 5))
sketch27.addConstraint(Sketcher.Constraint("Equal", 5, 6))
sketch27.addConstraint(Sketcher.Constraint("Equal", 6, 7))
sketch27.addConstraint(Sketcher.Constraint("Symmetric", 3, 3, 5, 3, -2))
sketch27.addConstraint(Sketcher.Constraint("Symmetric", 2, 3, 6, 3, -2))
sketch27.addConstraint(Sketcher.Constraint("Symmetric", 1, 3, 7, 3, -2))
sketch27.addConstraint(Sketcher.Constraint("PointOnObject", 0, 3, -2))
sketch27.addConstraint(Sketcher.Constraint("PointOnObject", 4, 3, -2))
sketch27.addConstraint(Sketcher.Constraint("Vertical", 1, 3, 3, 3))
sketch27.addConstraint(Sketcher.Constraint("Diameter", 0, 18.0))
sketch27.addConstraint(Sketcher.Constraint("DistanceY", -1, 1, 2, 3, 216.0))
sketch27.addConstraint(Sketcher.Constraint("DistanceY", -1, 1, 0, 3, 108.530611))
sketch27.addConstraint(Sketcher.Constraint("DistanceX", 2, 3, -1, 1, 107.469389))
sketch27.addConstraint(Sketcher.Constraint("DistanceY", -1, 1, 4, 3, 323.469389))
sketch27.addConstraint(Sketcher.Constraint("DistanceX", 1, 3, -1, 1, 75.992334))
sketch27.addConstraint(Sketcher.Constraint("DistanceY", -1, 1, 1, 3, 140.007666))
sketch27.addConstraint(Sketcher.Constraint("DistanceY", -1, 1, 3, 3, 291.992334))
pocket10 = doc.addObject("PartDesign::Pocket", "Pocket009")
body.addObject(pocket10)
pocket10.Profile = sketch27
pocket10.Length = 25
pocket10.Reversed = True

sketch28 = doc.addObject("Sketcher::SketchObject", "Sketch027")
body.addObject(sketch28)
sketch28.AttachmentSupport = (doc.XZ_Plane, [""])
sketch28.MapMode = "FlatFace"
sketch28.AttachmentOffset = App.Placement(App.Vector(0, 0, -600), App.Rotation())
sketch28.addGeometry(Part.Circle(App.Vector(-320, 998, 0), App.Vector(0, 0, 1), 50), False)
sketch28.addConstraint(Sketcher.Constraint("Diameter", 0, 100.0))
sketch28.addConstraint(Sketcher.Constraint("DistanceX", 0, 3, -1, 1, 320.0))
sketch28.addConstraint(Sketcher.Constraint("DistanceY", -1, 1, 0, 3, 998.0))
pocket11 = doc.addObject("PartDesign::Pocket", "Pocket010")
body.addObject(pocket11)
pocket11.Profile = sketch28
pocket11.Length = 500
pocket11.Reversed = True

sketch29 = doc.addObject("Sketcher::SketchObject", "Sketch028")
body.addObject(sketch29)
sketch29.AttachmentSupport = (doc.XY_Plane, [""])
sketch29.MapMode = "FlatFace"
sketch29.AttachmentOffset = App.Placement(App.Vector(0, 0, -120), App.Rotation())
sketch29.addGeometry(Part.Circle(App.Vector(0, 0, 0), App.Vector(0, 0, 1), 100), False)
sketch29.addConstraint(Sketcher.Constraint("Coincident", 0, 3, -1, 1))
sketch29.addConstraint(Sketcher.Constraint("Diameter", 0, 200.0))
pocket12 = doc.addObject("PartDesign::Pocket", "Pocket011")
body.addObject(pocket12)
pocket12.Profile = sketch29
pocket12.Length = 1000
pocket12.Reversed = True

sketch30 = doc.addObject("Sketcher::SketchObject", "Sketch029")
body.addObject(sketch30)
sketch30.AttachmentSupport = (doc.XY_Plane, [""])
sketch30.MapMode = "FlatFace"
sketch30.AttachmentOffset = App.Placement(App.Vector(0, 0, 1880), App.Rotation())
add_polygon(sketch30, [(-425, 638), (-425, 1264), (1406, 1264), (1406, 638)])
sketch30.addConstraint(Sketcher.Constraint("Vertical", 0))
sketch30.addConstraint(Sketcher.Constraint("Horizontal", 1))
sketch30.addConstraint(Sketcher.Constraint("Vertical", 2))
sketch30.addConstraint(Sketcher.Constraint("Horizontal", 3))
sketch30.addConstraint(Sketcher.Constraint("DistanceX", 1, 1, 1, 2, 1831.0))
sketch30.addConstraint(Sketcher.Constraint("DistanceY", 0, 1, 0, 2, 626.0))
sketch30.addConstraint(Sketcher.Constraint("DistanceX", 0, 2, -1, 1, 425.0))
sketch30.addConstraint(Sketcher.Constraint("DistanceY", -1, 1, 0, 2, 1264.0))
pad15 = doc.addObject("PartDesign::Pad", "Pad014")
body.addObject(pad15)
pad15.Profile = sketch30
pad15.Length = 542
pad15.Reversed = True

sketch31 = doc.addObject("Sketcher::SketchObject", "Sketch030")
body.addObject(sketch31)
sketch31.AttachmentSupport = (doc.XY_Plane, [""])
sketch31.MapMode = "FlatFace"
sketch31.AttachmentOffset = App.Placement(App.Vector(0, 0, 1338), App.Rotation())
add_polygon(sketch31, [(-425, 638), (-425, 1264), (275, 1264), (275, 638)])
sketch31.addConstraint(Sketcher.Constraint("Vertical", 0))
sketch31.addConstraint(Sketcher.Constraint("Horizontal", 1))
sketch31.addConstraint(Sketcher.Constraint("Vertical", 2))
sketch31.addConstraint(Sketcher.Constraint("Horizontal", 3))
sketch31.addConstraint(Sketcher.Constraint("DistanceX", 1, 1, 1, 2, 700.0))
sketch31.addConstraint(Sketcher.Constraint("DistanceY", 0, 1, 0, 2, 626.0))
sketch31.addConstraint(Sketcher.Constraint("DistanceX", 0, 2, -1, 1, 425.0))
sketch31.addConstraint(Sketcher.Constraint("DistanceY", -1, 1, 0, 2, 1264.0))
pad16 = doc.addObject("PartDesign::Pad", "Pad015")
body.addObject(pad16)
pad16.Profile = sketch31
pad16.Length = 61.2
pad16.Reversed = True

sketch32 = doc.addObject("Sketcher::SketchObject", "Sketch031")
body.addObject(sketch32)
sketch32.AttachmentSupport = (doc.YZ_Plane, [""])
sketch32.MapMode = "FlatFace"
sketch32.addGeometry(Part.Circle(App.Vector(0, 1087.4, 0), App.Vector(0, 0, 1), 30), False)
sketch32.addConstraint(Sketcher.Constraint("PointOnObject", 0, 3, -2))
sketch32.addConstraint(Sketcher.Constraint("Diameter", 0, 60.0))
sketch32.addConstraint(Sketcher.Constraint("DistanceY", -1, 1, 0, 3, 1087.4))
pad17 = doc.addObject("PartDesign::Pad", "Pad016")
body.addObject(pad17)
pad17.Profile = sketch32
pad17.Length = 448.5

sketch33 = doc.addObject("Sketcher::SketchObject", "Sketch032")
body.addObject(sketch33)
sketch33.AttachmentSupport = (doc.YZ_Plane, [""])
sketch33.MapMode = "FlatFace"
sketch33.AttachmentOffset = App.Placement(App.Vector(0, 0, 448.5), App.Rotation())
sketch33.addGeometry(Part.Circle(App.Vector(0, 1087.4, 0), App.Vector(0, 0, 1), 82.5), False)
sketch33.addGeometry(Part.Circle(App.Vector(0, 1087.4, 0), App.Vector(0, 0, 1), 30), False)
sketch33.addConstraint(Sketcher.Constraint("Coincident", 1, 3, 0, 3))
sketch33.addConstraint(Sketcher.Constraint("PointOnObject", 0, 3, -2))
sketch33.addConstraint(Sketcher.Constraint("Diameter", 0, 165.0))
sketch33.addConstraint(Sketcher.Constraint("Diameter", 1, 60.0))
sketch33.addConstraint(Sketcher.Constraint("DistanceY", -1, 1, 0, 3, 1087.4))
pad18 = doc.addObject("PartDesign::Pad", "Pad017")
body.addObject(pad18)
pad18.Profile = sketch33
pad18.Length = 15
pad18.Reversed = True

sketch34 = doc.addObject("Sketcher::SketchObject", "Sketch033")
body.addObject(sketch34)
sketch34.AttachmentSupport = (doc.YZ_Plane, [""])
sketch34.MapMode = "FlatFace"
sketch34.AttachmentOffset = App.Placement(App.Vector(0, 0, 448.5), App.Rotation())
sketch34.addGeometry(Part.Circle(App.Vector(0, 1087.4, 0), App.Vector(0, 0, 1), 25), False)
sketch34.addConstraint(Sketcher.Constraint("PointOnObject", 0, 3, -2))
sketch34.addConstraint(Sketcher.Constraint("Diameter", 0, 50.0))
sketch34.addConstraint(Sketcher.Constraint("DistanceY", -1, 1, 0, 3, 1087.4))
pocket13 = doc.addObject("PartDesign::Pocket", "Pocket012")
body.addObject(pocket13)
pocket13.Profile = sketch34
pocket13.Length = 500

sketch35 = doc.addObject("Sketcher::SketchObject", "Sketch034")
body.addObject(sketch35)
sketch35.AttachmentSupport = (doc.YZ_Plane, [""])
sketch35.MapMode = "FlatFace"
sketch35.AttachmentOffset = App.Placement(App.Vector(0, 0, 448.5), App.Rotation())
sketch35.addGeometry(Part.Circle(App.Vector(0, 1024.9, 0), App.Vector(0, 0, 1), 9), False)
sketch35.addGeometry(Part.Circle(App.Vector(61.1, 1086, 0), App.Vector(0, 0, 1), 9), False)
sketch35.addGeometry(Part.Circle(App.Vector(0, 1147.1, 0), App.Vector(0, 0, 1), 9), False)
sketch35.addGeometry(Part.Circle(App.Vector(-61.1, 1086, 0), App.Vector(0, 0, 1), 9), False)
sketch35.addConstraint(Sketcher.Constraint("Equal", 0, 1))
sketch35.addConstraint(Sketcher.Constraint("Equal", 1, 2))
sketch35.addConstraint(Sketcher.Constraint("Equal", 2, 3))
sketch35.addConstraint(Sketcher.Constraint("Symmetric", 1, 3, 3, 3, -2))
sketch35.addConstraint(Sketcher.Constraint("PointOnObject", 0, 3, -2))
sketch35.addConstraint(Sketcher.Constraint("PointOnObject", 2, 3, -2))
sketch35.addConstraint(Sketcher.Constraint("Diameter", 0, 18.0))
sketch35.addConstraint(Sketcher.Constraint("DistanceY", -1, 1, 1, 3, 1086.0))
sketch35.addConstraint(Sketcher.Constraint("DistanceY", -1, 1, 0, 3, 1024.9))
sketch35.addConstraint(Sketcher.Constraint("DistanceX", -1, 1, 1, 3, 61.1))
sketch35.addConstraint(Sketcher.Constraint("DistanceY", -1, 1, 2, 3, 1147.1))
pocket14 = doc.addObject("PartDesign::Pocket", "Pocket013")
body.addObject(pocket14)
pocket14.Profile = sketch35
pocket14.Length = 25

doc.recompute()
